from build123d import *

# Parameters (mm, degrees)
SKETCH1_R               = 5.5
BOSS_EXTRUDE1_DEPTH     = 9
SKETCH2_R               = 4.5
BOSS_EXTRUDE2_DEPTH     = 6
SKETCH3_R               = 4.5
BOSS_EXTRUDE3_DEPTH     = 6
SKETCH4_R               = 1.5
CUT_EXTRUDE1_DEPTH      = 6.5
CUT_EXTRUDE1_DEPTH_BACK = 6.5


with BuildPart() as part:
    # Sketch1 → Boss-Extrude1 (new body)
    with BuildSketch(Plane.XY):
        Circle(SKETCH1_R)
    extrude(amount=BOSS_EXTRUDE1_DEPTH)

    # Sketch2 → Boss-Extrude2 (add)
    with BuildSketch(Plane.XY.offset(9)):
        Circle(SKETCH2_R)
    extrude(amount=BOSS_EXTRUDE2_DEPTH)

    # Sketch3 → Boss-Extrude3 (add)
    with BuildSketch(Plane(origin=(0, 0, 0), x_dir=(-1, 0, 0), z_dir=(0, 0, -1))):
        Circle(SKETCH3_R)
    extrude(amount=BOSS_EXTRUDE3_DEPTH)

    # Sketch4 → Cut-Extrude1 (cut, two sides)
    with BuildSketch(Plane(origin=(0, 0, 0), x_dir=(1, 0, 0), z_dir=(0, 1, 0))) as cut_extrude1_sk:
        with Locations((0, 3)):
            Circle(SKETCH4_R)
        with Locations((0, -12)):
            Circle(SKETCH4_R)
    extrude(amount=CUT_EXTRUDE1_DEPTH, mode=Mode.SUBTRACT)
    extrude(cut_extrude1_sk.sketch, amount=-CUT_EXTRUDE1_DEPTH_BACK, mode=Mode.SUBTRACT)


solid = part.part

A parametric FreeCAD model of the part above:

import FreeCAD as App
import Part
import Sketcher

V = App.Vector
Q = App.Units.Quantity

doc = App.newDocument("Part")
body = doc.addObject("PartDesign::Body", "Body")

sketch1 = body.newObject("Sketcher::SketchObject", "Sketch")
sketch1.AttachmentSupport = (doc.getObject("XY_Plane"), [""])
sketch1.MapMode = "FlatFace"
sketch1.addGeometry(Part.Circle(V(0, 0, 0), V(0, 0, 1), 6), False)
sketch1.addConstraint(Sketcher.Constraint("Coincident", 0, 3, -1, 1))
sketch1.addConstraint(Sketcher.Constraint("Diameter", 0, Q("11 mm")))
pad1 = body.newObject("PartDesign::Pad", "Pad")
pad1.Profile = sketch1
pad1.Length = 9

sketch2 = body.newObject("Sketcher::SketchObject", "Sketch001")
sketch2.AttachmentSupport = (doc.getObject("XY_Plane"), [""])
sketch2.MapMode = "FlatFace"
sketch2.AttachmentOffset = App.Placement(V(0, 0, 9), App.Rotation())
sketch2.addGeometry(Part.Circle(V(0, 0, 0), V(0, 0, 1), 4.5), False)
sketch2.addConstraint(Sketcher.Constraint("Coincident", 0, 3, -1, 1))
sketch2.addConstraint(Sketcher.Constraint("Diameter", 0, Q("9 mm")))
pad2 = body.newObject("PartDesign::Pad", "Pad001")
pad2.Profile = sketch2
pad2.Length = 6

sketch3 = body.newObject("Sketcher::SketchObject", "Sketch002")
sketch3.AttachmentSupport = (doc.getObject("XY_Plane"), [""])
sketch3.MapMode = "FlatFace"
sketch3.addGeometry(Part.Circle(V(0, 0, 0), V(0, 0, 1), 4.5), False)
sketch3.addConstraint(Sketcher.Constraint("Coincident", 0, 3, -1, 1))
sketch3.addConstraint(Sketcher.Constraint("Diameter", 0, Q("9 mm")))
pad3 = body.newObject("PartDesign::Pad", "Pad002")
pad3.Profile = sketch3
pad3.Length = 6
pad3.Reversed = True

sketch4 = body.newObject("Sketcher::SketchObject", "Sketch003")
sketch4.AttachmentSupport = (doc.getObject("XZ_Plane"), [""])
sketch4.MapMode = "FlatFace"
sketch4.addGeometry(Part.Circle(V(0, -3, 0), V(0, 0, 1), 1.5), False)
sketch4.addGeometry(Part.Circle(V(0, 12, 0), V(0, 0, 1), 1.5), False)
sketch4.addConstraint(Sketcher.Constraint("Equal", 0, 1))
sketch4.addConstraint(Sketcher.Constraint("PointOnObject", 0, 3, -2))
sketch4.addConstraint(Sketcher.Constraint("PointOnObject", 1, 3, -2))
sketch4.addConstraint(Sketcher.Constraint("Diameter", 0, Q("3 mm")))
sketch4.addConstraint(Sketcher.Constraint("DistanceY", 0, 3, -1, 1, Q("3 mm")))
sketch4.addConstraint(Sketcher.Constraint("DistanceY", -1, 1, 1, 3, Q("12 mm")))
pocket1 = body.newObject("PartDesign::Pocket", "Pocket")
pocket1.Profile = sketch4
pocket1.Type = "ThroughAll"
pocket1.Midplane = True

doc.recompute()
